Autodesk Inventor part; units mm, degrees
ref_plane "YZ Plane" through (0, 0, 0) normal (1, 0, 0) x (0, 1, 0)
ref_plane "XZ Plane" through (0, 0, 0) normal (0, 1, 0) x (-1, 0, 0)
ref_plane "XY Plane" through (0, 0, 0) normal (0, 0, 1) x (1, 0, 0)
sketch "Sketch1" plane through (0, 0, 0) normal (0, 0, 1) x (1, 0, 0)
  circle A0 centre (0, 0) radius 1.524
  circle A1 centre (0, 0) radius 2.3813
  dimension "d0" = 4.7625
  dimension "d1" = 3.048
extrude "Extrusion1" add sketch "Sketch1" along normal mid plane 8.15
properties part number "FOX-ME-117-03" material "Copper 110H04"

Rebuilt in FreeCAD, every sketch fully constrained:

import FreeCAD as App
import Part
import Sketcher
from FreeCAD import Vector
Q = App.Units.Quantity

doc = App.newDocument("Part")
body = doc.addObject("PartDesign::Body", "Body")

# Sketch on XY plane
sketch1 = body.newObject("Sketcher::SketchObject", "Sketch")
sketch1.AttachmentSupport = (doc.getObject("XY_Plane"), [""])
sketch1.MapMode = "FlatFace"
sketch1.addGeometry([
    Part.Circle(Vector(0, 0, 0), Vector(0, 0, 1), 2.4),
    Part.Circle(Vector(0, 0, 0), Vector(0, 0, 1), 1.5),
], False)
sketch1.addConstraint([
    Sketcher.Constraint("Coincident", 0, 3, -1, 1),
    Sketcher.Constraint("Coincident", 1, 3, -1, 1),
    Sketcher.Constraint("Diameter", 1, Q("0.12 in")),
    Sketcher.Constraint("Diameter", 0, Q("0.1875 in")),
])
pad1 = body.newObject("PartDesign::Pad", "Pad")
pad1.Profile = sketch1
pad1.Length = 8.15
pad1.Midplane = True

doc.recompute()
